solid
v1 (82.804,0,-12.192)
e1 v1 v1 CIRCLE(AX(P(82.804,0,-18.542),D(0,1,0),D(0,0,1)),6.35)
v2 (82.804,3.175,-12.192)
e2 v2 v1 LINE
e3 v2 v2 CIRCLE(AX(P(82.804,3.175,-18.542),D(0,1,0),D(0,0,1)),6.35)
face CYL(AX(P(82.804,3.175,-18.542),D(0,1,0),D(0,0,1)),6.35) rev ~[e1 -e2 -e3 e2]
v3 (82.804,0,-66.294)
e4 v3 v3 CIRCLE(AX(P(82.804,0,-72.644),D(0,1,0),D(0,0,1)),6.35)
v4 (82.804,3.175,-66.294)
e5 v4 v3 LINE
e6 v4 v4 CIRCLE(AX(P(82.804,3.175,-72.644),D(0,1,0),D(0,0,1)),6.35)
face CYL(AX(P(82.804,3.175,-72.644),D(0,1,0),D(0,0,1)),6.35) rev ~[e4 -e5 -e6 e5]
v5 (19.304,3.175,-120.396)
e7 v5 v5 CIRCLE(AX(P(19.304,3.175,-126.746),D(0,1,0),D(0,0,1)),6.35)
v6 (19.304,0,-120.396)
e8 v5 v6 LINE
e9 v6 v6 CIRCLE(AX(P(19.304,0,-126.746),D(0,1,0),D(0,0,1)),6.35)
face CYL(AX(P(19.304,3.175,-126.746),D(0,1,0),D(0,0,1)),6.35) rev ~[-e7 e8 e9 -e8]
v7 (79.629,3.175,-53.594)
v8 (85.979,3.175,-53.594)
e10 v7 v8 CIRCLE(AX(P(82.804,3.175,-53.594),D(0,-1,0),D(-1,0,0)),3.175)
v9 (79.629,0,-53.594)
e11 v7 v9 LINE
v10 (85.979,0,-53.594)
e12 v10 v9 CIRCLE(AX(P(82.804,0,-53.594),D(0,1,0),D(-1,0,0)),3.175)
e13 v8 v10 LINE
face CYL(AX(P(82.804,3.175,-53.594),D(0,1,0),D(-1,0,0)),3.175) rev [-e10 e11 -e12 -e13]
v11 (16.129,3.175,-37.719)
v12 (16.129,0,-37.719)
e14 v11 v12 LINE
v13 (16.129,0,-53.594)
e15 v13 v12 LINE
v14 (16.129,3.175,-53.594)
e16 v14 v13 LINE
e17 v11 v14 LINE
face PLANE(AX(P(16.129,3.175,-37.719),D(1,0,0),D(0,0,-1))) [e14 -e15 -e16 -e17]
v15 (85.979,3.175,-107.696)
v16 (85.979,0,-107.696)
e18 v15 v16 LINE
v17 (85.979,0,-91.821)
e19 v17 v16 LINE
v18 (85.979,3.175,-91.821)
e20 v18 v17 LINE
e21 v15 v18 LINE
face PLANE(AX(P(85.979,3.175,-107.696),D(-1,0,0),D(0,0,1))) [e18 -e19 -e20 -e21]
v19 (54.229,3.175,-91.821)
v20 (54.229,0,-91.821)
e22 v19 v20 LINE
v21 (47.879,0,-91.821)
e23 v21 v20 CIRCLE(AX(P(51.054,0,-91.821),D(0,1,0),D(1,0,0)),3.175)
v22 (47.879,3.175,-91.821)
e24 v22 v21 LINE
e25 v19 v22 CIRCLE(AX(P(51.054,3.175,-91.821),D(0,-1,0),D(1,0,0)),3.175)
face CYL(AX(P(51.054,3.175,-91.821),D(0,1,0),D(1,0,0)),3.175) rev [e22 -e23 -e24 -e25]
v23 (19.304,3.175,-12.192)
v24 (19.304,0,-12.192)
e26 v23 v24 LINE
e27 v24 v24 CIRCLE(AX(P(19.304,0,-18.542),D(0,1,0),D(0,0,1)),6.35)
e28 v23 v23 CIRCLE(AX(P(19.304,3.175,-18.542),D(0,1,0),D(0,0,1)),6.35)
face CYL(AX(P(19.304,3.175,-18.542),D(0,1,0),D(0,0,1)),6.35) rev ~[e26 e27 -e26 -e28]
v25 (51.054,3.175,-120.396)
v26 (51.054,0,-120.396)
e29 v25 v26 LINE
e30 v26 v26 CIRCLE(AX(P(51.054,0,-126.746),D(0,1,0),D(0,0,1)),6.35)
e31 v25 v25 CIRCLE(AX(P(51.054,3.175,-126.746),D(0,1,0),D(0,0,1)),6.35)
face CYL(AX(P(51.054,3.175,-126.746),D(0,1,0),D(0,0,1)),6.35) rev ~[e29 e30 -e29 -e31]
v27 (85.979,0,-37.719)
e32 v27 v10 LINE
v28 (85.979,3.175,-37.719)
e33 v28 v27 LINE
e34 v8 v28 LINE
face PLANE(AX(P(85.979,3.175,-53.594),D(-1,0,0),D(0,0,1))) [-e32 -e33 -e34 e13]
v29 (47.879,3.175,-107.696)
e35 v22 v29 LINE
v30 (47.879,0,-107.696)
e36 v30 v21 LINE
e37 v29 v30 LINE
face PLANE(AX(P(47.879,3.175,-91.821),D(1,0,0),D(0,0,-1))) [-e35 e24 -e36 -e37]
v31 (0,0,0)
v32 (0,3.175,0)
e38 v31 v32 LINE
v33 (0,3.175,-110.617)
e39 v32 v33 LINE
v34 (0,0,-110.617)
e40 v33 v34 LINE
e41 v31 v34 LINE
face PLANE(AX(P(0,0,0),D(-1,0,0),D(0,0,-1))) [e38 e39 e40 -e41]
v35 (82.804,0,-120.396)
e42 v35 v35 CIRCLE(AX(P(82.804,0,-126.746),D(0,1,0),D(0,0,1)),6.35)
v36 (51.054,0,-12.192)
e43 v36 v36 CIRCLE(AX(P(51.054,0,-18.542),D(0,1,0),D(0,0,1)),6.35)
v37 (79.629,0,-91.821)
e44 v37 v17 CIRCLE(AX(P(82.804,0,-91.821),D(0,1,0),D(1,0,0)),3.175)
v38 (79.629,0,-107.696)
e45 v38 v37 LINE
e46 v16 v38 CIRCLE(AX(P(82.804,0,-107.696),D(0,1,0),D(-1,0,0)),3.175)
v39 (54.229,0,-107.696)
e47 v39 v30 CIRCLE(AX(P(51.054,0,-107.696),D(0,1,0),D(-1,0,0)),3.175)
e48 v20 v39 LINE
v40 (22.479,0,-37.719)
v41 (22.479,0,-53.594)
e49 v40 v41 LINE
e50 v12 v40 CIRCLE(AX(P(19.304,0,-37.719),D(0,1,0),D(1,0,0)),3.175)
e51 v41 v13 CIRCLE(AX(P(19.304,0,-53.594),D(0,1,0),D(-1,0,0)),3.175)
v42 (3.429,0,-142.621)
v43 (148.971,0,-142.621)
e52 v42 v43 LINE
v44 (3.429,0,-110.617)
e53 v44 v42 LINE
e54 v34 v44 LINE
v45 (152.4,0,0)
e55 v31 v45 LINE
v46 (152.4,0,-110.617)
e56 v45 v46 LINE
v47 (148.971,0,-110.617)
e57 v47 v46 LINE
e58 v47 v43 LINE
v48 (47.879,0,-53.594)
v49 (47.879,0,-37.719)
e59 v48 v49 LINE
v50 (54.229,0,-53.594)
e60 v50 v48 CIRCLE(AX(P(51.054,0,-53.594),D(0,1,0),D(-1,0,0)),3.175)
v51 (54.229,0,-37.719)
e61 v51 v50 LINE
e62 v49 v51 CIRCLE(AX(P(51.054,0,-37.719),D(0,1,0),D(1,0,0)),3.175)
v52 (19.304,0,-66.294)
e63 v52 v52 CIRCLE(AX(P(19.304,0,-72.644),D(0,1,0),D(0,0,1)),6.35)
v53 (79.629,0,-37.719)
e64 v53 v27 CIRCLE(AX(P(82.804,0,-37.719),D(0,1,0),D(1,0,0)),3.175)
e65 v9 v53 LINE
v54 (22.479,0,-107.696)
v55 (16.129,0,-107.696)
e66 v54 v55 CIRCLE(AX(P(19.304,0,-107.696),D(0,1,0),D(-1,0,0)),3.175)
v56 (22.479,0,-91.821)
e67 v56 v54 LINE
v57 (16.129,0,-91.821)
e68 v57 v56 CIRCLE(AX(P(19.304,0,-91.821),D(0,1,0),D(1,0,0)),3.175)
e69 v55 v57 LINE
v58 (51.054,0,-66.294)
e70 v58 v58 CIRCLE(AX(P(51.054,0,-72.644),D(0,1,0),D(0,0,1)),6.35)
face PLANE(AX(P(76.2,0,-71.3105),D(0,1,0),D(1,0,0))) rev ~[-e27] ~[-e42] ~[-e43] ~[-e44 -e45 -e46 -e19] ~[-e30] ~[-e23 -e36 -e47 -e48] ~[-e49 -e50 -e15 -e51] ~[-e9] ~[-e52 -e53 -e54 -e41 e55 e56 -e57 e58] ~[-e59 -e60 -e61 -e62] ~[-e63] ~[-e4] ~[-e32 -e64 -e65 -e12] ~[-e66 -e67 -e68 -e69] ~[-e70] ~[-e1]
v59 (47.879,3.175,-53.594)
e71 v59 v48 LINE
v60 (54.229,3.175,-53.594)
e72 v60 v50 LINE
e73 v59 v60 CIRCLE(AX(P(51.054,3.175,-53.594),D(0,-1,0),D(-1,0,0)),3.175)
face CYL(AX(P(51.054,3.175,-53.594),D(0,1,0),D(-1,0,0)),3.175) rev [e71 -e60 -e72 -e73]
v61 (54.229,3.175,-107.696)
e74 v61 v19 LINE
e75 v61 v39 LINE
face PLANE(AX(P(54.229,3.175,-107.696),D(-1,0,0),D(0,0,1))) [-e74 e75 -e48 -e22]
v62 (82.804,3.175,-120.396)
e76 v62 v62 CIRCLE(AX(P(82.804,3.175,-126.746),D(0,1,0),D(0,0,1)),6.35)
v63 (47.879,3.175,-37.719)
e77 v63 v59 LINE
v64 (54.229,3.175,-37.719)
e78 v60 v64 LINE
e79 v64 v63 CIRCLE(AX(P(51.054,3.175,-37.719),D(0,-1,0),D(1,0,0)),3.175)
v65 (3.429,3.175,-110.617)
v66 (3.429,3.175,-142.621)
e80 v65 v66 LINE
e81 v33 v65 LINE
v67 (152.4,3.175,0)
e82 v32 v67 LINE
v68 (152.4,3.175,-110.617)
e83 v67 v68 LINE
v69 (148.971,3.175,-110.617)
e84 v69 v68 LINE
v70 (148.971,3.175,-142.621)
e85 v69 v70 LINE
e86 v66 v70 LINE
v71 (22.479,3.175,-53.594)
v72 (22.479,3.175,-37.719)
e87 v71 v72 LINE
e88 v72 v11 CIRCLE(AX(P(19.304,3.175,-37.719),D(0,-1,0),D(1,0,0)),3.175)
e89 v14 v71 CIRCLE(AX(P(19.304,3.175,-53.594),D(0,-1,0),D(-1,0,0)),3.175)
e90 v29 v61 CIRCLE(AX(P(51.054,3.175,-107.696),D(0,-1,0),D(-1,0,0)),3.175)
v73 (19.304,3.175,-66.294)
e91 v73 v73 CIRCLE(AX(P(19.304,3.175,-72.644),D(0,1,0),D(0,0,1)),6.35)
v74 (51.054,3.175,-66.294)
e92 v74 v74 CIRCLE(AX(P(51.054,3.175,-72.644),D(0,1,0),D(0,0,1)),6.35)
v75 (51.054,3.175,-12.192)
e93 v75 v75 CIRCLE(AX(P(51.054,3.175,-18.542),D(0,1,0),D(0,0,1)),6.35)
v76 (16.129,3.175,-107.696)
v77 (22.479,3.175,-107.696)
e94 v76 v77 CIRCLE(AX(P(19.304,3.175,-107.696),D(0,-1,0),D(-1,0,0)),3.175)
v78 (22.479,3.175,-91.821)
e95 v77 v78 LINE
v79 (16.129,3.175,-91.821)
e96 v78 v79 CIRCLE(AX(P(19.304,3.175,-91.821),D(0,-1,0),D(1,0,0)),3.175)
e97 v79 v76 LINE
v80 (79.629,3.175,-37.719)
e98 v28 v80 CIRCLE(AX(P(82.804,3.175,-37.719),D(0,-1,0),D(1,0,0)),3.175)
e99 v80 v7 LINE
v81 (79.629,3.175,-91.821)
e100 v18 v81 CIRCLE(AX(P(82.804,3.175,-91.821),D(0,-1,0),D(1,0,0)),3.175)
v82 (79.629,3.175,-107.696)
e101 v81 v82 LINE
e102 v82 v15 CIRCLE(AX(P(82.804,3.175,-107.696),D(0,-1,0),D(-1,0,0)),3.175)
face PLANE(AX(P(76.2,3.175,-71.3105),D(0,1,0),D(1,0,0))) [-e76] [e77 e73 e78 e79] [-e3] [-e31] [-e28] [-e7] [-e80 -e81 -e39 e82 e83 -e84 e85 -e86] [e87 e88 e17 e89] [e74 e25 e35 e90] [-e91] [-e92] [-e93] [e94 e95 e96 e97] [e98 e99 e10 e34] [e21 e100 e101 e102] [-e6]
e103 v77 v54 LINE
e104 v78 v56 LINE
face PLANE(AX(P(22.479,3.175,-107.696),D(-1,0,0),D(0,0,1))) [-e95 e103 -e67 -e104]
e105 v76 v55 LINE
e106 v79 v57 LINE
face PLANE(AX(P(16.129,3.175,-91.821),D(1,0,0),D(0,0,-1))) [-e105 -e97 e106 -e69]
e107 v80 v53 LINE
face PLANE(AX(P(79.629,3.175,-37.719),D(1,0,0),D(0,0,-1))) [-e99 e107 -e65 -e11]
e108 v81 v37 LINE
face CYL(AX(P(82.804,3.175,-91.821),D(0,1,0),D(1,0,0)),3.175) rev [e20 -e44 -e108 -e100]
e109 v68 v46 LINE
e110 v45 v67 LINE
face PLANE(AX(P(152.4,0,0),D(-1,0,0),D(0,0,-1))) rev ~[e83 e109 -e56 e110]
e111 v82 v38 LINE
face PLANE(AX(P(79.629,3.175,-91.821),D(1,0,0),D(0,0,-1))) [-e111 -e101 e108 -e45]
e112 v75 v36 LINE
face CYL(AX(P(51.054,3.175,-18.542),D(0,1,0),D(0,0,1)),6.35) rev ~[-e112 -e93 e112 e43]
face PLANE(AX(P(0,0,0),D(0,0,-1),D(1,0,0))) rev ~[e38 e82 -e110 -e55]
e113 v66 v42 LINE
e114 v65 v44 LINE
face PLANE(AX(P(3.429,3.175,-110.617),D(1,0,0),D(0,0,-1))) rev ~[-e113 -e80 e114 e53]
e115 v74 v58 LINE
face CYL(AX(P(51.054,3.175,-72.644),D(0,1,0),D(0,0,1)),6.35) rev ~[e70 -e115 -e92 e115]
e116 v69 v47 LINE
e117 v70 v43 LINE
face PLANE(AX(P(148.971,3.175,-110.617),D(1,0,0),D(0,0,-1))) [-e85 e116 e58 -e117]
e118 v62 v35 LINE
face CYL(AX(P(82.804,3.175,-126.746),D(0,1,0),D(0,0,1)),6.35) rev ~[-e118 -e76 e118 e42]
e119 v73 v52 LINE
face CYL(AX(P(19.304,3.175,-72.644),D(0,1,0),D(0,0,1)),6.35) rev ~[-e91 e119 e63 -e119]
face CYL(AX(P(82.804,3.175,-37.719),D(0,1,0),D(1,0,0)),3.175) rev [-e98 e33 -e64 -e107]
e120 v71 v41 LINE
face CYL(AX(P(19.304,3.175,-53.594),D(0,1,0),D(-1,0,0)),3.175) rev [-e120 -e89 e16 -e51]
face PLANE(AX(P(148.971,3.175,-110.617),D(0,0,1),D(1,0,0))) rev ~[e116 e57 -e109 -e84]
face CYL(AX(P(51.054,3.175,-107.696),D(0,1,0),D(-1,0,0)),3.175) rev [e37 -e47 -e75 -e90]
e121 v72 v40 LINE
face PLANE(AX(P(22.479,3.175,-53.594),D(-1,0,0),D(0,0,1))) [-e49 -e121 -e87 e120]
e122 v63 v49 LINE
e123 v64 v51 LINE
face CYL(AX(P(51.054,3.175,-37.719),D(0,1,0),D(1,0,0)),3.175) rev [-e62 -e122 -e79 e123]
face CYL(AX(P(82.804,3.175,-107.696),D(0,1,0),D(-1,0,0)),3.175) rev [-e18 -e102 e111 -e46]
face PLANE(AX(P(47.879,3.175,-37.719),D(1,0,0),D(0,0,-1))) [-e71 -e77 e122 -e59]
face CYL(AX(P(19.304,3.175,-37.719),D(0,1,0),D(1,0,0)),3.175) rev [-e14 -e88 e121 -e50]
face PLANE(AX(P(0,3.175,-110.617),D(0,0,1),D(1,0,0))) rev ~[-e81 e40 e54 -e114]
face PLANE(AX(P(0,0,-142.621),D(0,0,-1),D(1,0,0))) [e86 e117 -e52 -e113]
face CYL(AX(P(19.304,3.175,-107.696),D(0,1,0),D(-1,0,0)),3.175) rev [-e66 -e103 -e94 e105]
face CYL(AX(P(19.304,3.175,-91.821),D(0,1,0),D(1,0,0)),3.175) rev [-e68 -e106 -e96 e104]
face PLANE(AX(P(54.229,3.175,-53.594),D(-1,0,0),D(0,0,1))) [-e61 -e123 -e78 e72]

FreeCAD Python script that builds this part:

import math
import FreeCAD as App
import Part
import Sketcher
from FreeCAD import Vector
Q = App.Units.Quantity

doc = App.newDocument("Part")
body = doc.addObject("PartDesign::Body", "Body")

# Sketch on XZ plane
sketch1 = body.newObject("Sketcher::SketchObject", "Sketch")
sketch1.AttachmentSupport = (doc.getObject("XZ_Plane"), [""])
sketch1.MapMode = "FlatFace"
sketch1.addGeometry([
    Part.LineSegment(Vector(0, -143, 0), Vector(0, 0, 0)),
    Part.LineSegment(Vector(0, 0, 0), Vector(152, 0, 0)),
    Part.LineSegment(Vector(152, 0, 0), Vector(152, -143, 0)),
    Part.LineSegment(Vector(152, -143, 0), Vector(0, -143, 0)),
], False)
sketch1.addConstraint([
    Sketcher.Constraint("Coincident", 0, 2, 1, 1),
    Sketcher.Constraint("Coincident", 1, 2, 2, 1),
    Sketcher.Constraint("Coincident", 2, 2, 3, 1),
    Sketcher.Constraint("Coincident", 3, 2, 0, 1),
    Sketcher.Constraint("Vertical", 0),
    Sketcher.Constraint("Horizontal", 1),
    Sketcher.Constraint("Vertical", 2),
    Sketcher.Constraint("Horizontal", 3),
    Sketcher.Constraint("Coincident", 0, 2, -1, 1),
    Sketcher.Constraint("DistanceX", 1, 1, 1, 2, Q("6 in")),
    Sketcher.Constraint("DistanceY", 0, 1, 0, 2, Q("5.615 in")),
])
pad1 = body.newObject("PartDesign::Pad", "Pad")
pad1.Profile = sketch1
pad1.Length = Q("0.125 in")
pad1.Reversed = True

# Sketch on XZ plane
sketch2 = body.newObject("Sketcher::SketchObject", "Sketch001")
sketch2.AttachmentSupport = (doc.getObject("XZ_Plane"), [""])
sketch2.MapMode = "FlatFace"
sketch2.AttachmentOffset = App.Placement(Vector(0, 0, -0.125 * 25.4), App.Rotation())
sketch2.addGeometry([
    Part.LineSegment(Vector(0, -142.6, 0), Vector(0, -110.6, 0)),  # 0
    Part.LineSegment(Vector(0, -110.6, 0), Vector(3.4, -110.6, 0)),  # 1
    Part.LineSegment(Vector(3.4, -110.6, 0), Vector(3.4, -142.6, 0)),  # 2
    Part.LineSegment(Vector(3.4, -142.6, 0), Vector(0, -142.6, 0)),  # 3
    Part.LineSegment(Vector(149, -142.6, 0), Vector(149, -110.6, 0)),  # 4
    Part.LineSegment(Vector(149, -110.6, 0), Vector(152.4, -110.6, 0)),  # 5
    Part.LineSegment(Vector(152.4, -110.6, 0), Vector(152.4, -142.6, 0)),  # 6
    Part.LineSegment(Vector(152.4, -142.6, 0), Vector(149, -142.6, 0)),  # 7
], False)
sketch2.addConstraint([
    Sketcher.Constraint("Coincident", 0, 2, 1, 1),
    Sketcher.Constraint("Coincident", 1, 2, 2, 1),
    Sketcher.Constraint("Coincident", 2, 2, 3, 1),
    Sketcher.Constraint("Coincident", 3, 2, 0, 1),
    Sketcher.Constraint("Coincident", 4, 2, 5, 1),
    Sketcher.Constraint("Coincident", 5, 2, 6, 1),
    Sketcher.Constraint("Coincident", 6, 2, 7, 1),
    Sketcher.Constraint("Coincident", 7, 2, 4, 1),
    Sketcher.Constraint("Vertical", 0),
    Sketcher.Constraint("Horizontal", 1),
    Sketcher.Constraint("Vertical", 2),
    Sketcher.Constraint("Horizontal", 3),
    Sketcher.Constraint("Vertical", 4),
    Sketcher.Constraint("Horizontal", 5),
    Sketcher.Constraint("Vertical", 6),
    Sketcher.Constraint("Horizontal", 7),
    Sketcher.Constraint("PointOnObject", 0, 2, -2),
    Sketcher.Constraint("Horizontal", 1, 2, 4, 2),
    Sketcher.Constraint("Horizontal", 3, 2, 6, 2),
    Sketcher.Constraint("Equal", 3, 5),
    Sketcher.Constraint("DistanceX", -1, 1, 5, 2, Q("6 in")),
    Sketcher.Constraint("DistanceY", 0, 1, 0, 2, Q("1.26 in")),
    Sketcher.Constraint("DistanceX", 1, 1, 1, 2, Q("0.135 in")),
    Sketcher.Constraint("DistanceY", 0, 2, -1, 1, Q("4.355 in")),
])
pocket1 = body.newObject("PartDesign::Pocket", "Pocket")
pocket1.Profile = sketch2
pocket1.Type = "ThroughAll"
pocket1.Reversed = True

# Sketch on XZ plane
sketch3 = body.newObject("Sketcher::SketchObject", "Sketch002")
sketch3.AttachmentSupport = (doc.getObject("XZ_Plane"), [""])
sketch3.MapMode = "FlatFace"
sketch3.AttachmentOffset = App.Placement(Vector(0, 0, -0.125 * 25.4), App.Rotation())
sketch3.addGeometry(Part.Circle(Vector(19, -127, 0), Vector(0, 0, 1), 6), False)
sketch3.addConstraint([
    Sketcher.Constraint("Diameter", 0, Q("0.5 in")),
    Sketcher.Constraint("DistanceX", -1, 1, 0, 3, Q("0.76 in")),
    Sketcher.Constraint("DistanceY", 0, 3, -1, 1, Q("4.99 in")),
])
pocket2 = body.newObject("PartDesign::Pocket", "Pocket001")
pocket2.Profile = sketch3
pocket2.Type = "UpToFirst"
pocket2.Reversed = True

# Sketch on XZ plane
sketch4 = body.newObject("Sketcher::SketchObject", "Sketch003")
sketch4.AttachmentSupport = (doc.getObject("XZ_Plane"), [""])
sketch4.MapMode = "FlatFace"
sketch4.AttachmentOffset = App.Placement(Vector(0, 0, -0.125 * 25.4), App.Rotation())
sketch4.addGeometry(Part.Circle(Vector(51, -127, 0), Vector(0, 0, 1), 6), False)
sketch4.addConstraint([
    Sketcher.Constraint("Diameter", 0, Q("0.5 in")),
    Sketcher.Constraint("DistanceX", -1, 1, 0, 3, Q("2.01 in")),
    Sketcher.Constraint("DistanceY", 0, 3, -1, 1, Q("4.99 in")),
])
pocket3 = body.newObject("PartDesign::Pocket", "Pocket002")
pocket3.Profile = sketch4
pocket3.Type = "UpToFirst"
pocket3.Reversed = True

# Sketch on XZ plane
sketch5 = body.newObject("Sketcher::SketchObject", "Sketch004")
sketch5.AttachmentSupport = (doc.getObject("XZ_Plane"), [""])
sketch5.MapMode = "FlatFace"
sketch5.AttachmentOffset = App.Placement(Vector(0, 0, -0.125 * 25.4), App.Rotation())
sketch5.addGeometry(Part.Circle(Vector(83, -127, 0), Vector(0, 0, 1), 6), False)
sketch5.addConstraint([
    Sketcher.Constraint("Diameter", 0, Q("0.5 in")),
    Sketcher.Constraint("DistanceX", -1, 1, 0, 3, Q("3.26 in")),
    Sketcher.Constraint("DistanceY", 0, 3, -1, 1, Q("4.99 in")),
])
pocket4 = body.newObject("PartDesign::Pocket", "Pocket003")
pocket4.Profile = sketch5
pocket4.Type = "UpToFirst"
pocket4.Reversed = True

# Sketch on XZ plane
sketch6 = body.newObject("Sketcher::SketchObject", "Sketch005")
sketch6.AttachmentSupport = (doc.getObject("XZ_Plane"), [""])
sketch6.MapMode = "FlatFace"
sketch6.AttachmentOffset = App.Placement(Vector(0, 0, -0.125 * 25.4), App.Rotation())
sketch6.addGeometry(Part.Circle(Vector(19, -73, 0), Vector(0, 0, 1), 6), False)
sketch6.addConstraint([
    Sketcher.Constraint("Diameter", 0, Q("0.5 in")),
    Sketcher.Constraint("DistanceX", -1, 1, 0, 3, Q("0.76 in")),
    Sketcher.Constraint("DistanceY", 0, 3, -1, 1, Q("2.86 in")),
])
pocket5 = body.newObject("PartDesign::Pocket", "Pocket004")
pocket5.Profile = sketch6
pocket5.Type = "UpToFirst"
pocket5.Reversed = True

# Sketch on XZ plane
sketch7 = body.newObject("Sketcher::SketchObject", "Sketch006")
sketch7.AttachmentSupport = (doc.getObject("XZ_Plane"), [""])
sketch7.MapMode = "FlatFace"
sketch7.AttachmentOffset = App.Placement(Vector(0, 0, -0.125 * 25.4), App.Rotation())
sketch7.addGeometry(Part.Circle(Vector(51, -73, 0), Vector(0, 0, 1), 6), False)
sketch7.addConstraint([
    Sketcher.Constraint("Diameter", 0, Q("0.5 in")),
    Sketcher.Constraint("DistanceX", -1, 1, 0, 3, Q("2.01 in")),
    Sketcher.Constraint("DistanceY", 0, 3, -1, 1, Q("2.86 in")),
])
pocket6 = body.newObject("PartDesign::Pocket", "Pocket005")
pocket6.Profile = sketch7
pocket6.Type = "UpToFirst"
pocket6.Reversed = True

# Sketch on XZ plane
sketch8 = body.newObject("Sketcher::SketchObject", "Sketch007")
sketch8.AttachmentSupport = (doc.getObject("XZ_Plane"), [""])
sketch8.MapMode = "FlatFace"
sketch8.AttachmentOffset = App.Placement(Vector(0, 0, -0.125 * 25.4), App.Rotation())
sketch8.addGeometry(Part.Circle(Vector(83, -73, 0), Vector(0, 0, 1), 6), False)
sketch8.addConstraint([
    Sketcher.Constraint("Diameter", 0, Q("0.5 in")),
    Sketcher.Constraint("DistanceX", -1, 1, 0, 3, Q("3.26 in")),
    Sketcher.Constraint("DistanceY", 0, 3, -1, 1, Q("2.86 in")),
])
pocket7 = body.newObject("PartDesign::Pocket", "Pocket006")
pocket7.Profile = sketch8
pocket7.Type = "UpToFirst"
pocket7.Reversed = True

# Sketch on XZ plane
sketch9 = body.newObject("Sketcher::SketchObject", "Sketch008")
sketch9.AttachmentSupport = (doc.getObject("XZ_Plane"), [""])
sketch9.MapMode = "FlatFace"
sketch9.AttachmentOffset = App.Placement(Vector(0, 0, -0.125 * 25.4), App.Rotation())
sketch9.addGeometry(Part.Circle(Vector(19, -19, 0), Vector(0, 0, 1), 6), False)
sketch9.addConstraint([
    Sketcher.Constraint("Diameter", 0, Q("0.5 in")),
    Sketcher.Constraint("DistanceX", -1, 1, 0, 3, Q("0.76 in")),
    Sketcher.Constraint("DistanceY", 0, 3, -1, 1, Q("0.73 in")),
])
pocket8 = body.newObject("PartDesign::Pocket", "Pocket007")
pocket8.Profile = sketch9
pocket8.Type = "UpToFirst"
pocket8.Reversed = True

# Sketch on XZ plane
sketch10 = body.newObject("Sketcher::SketchObject", "Sketch009")
sketch10.AttachmentSupport = (doc.getObject("XZ_Plane"), [""])
sketch10.MapMode = "FlatFace"
sketch10.AttachmentOffset = App.Placement(Vector(0, 0, -0.125 * 25.4), App.Rotation())
sketch10.addGeometry(Part.Circle(Vector(51, -19, 0), Vector(0, 0, 1), 6), False)
sketch10.addConstraint([
    Sketcher.Constraint("Diameter", 0, Q("0.5 in")),
    Sketcher.Constraint("DistanceX", -1, 1, 0, 3, Q("2.01 in")),
    Sketcher.Constraint("DistanceY", 0, 3, -1, 1, Q("0.73 in")),
])
pocket9 = body.newObject("PartDesign::Pocket", "Pocket008")
pocket9.Profile = sketch10
pocket9.Type = "UpToFirst"
pocket9.Reversed = True

# Sketch on XZ plane
sketch11 = body.newObject("Sketcher::SketchObject", "Sketch010")
sketch11.AttachmentSupport = (doc.getObject("XZ_Plane"), [""])
sketch11.MapMode = "FlatFace"
sketch11.AttachmentOffset = App.Placement(Vector(0, 0, -0.125 * 25.4), App.Rotation())
sketch11.addGeometry(Part.Circle(Vector(83, -19, 0), Vector(0, 0, 1), 6), False)
sketch11.addConstraint([
    Sketcher.Constraint("Diameter", 0, Q("0.5 in")),
    Sketcher.Constraint("DistanceX", -1, 1, 0, 3, Q("3.26 in")),
    Sketcher.Constraint("DistanceY", 0, 3, -1, 1, Q("0.73 in")),
])
pocket10 = body.newObject("PartDesign::Pocket", "Pocket009")
pocket10.Profile = sketch11
pocket10.Type = "UpToFirst"
pocket10.Reversed = True

# Sketch on XZ plane
sketch12 = body.newObject("Sketcher::SketchObject", "Sketch011")
sketch12.AttachmentSupport = (doc.getObject("XZ_Plane"), [""])
sketch12.MapMode = "FlatFace"
sketch12.AttachmentOffset = App.Placement(Vector(0, 0, -0.125 * 25.4), App.Rotation())
sketch12.addGeometry([
    Part.LineSegment(Vector(22.5, -91.8, 0), Vector(22.5, -107.7, 0)),
    Part.ArcOfCircle(Part.Circle(Vector(19.3, -107.7, 0), Vector(0, 0, 1), 3.2), math.radians(180), math.radians(360)),
    Part.LineSegment(Vector(16.1, -107.7, 0), Vector(16.1, -91.8, 0)),
    Part.ArcOfCircle(Part.Circle(Vector(19.3, -91.8, 0), Vector(0, 0, 1), 3.2), math.radians(0), math.radians(180)),
], False)
sketch12.addConstraint([
    Sketcher.Constraint("Tangent", 0, 2, 1, 2),
    Sketcher.Constraint("Tangent", 1, 1, 2, 1),
    Sketcher.Constraint("Tangent", 2, 2, 3, 2),
    Sketcher.Constraint("Tangent", 3, 1, 0, 1),
    Sketcher.Constraint("Vertical", 0),
    Sketcher.Constraint("Vertical", 2),
    Sketcher.Constraint("Radius", 1, Q("0.125 in")),
    Sketcher.Constraint("DistanceY", 0, 2, 0, 1, Q("0.625 in")),
    Sketcher.Constraint("DistanceX", -1, 1, 1, 3, Q("0.76 in")),
    Sketcher.Constraint("DistanceY", 1, 3, -1, 1, Q("4.24 in")),
])
pocket11 = body.newObject("PartDesign::Pocket", "Pocket010")
pocket11.Profile = sketch12
pocket11.Type = "UpToFirst"
pocket11.Reversed = True

# Sketch on XZ plane
sketch13 = body.newObject("Sketcher::SketchObject", "Sketch012")
sketch13.AttachmentSupport = (doc.getObject("XZ_Plane"), [""])
sketch13.MapMode = "FlatFace"
sketch13.AttachmentOffset = App.Placement(Vector(0, 0, -0.125 * 25.4), App.Rotation())
sketch13.addGeometry([
    Part.LineSegment(Vector(54.2, -91.8, 0), Vector(54.2, -107.7, 0)),
    Part.ArcOfCircle(Part.Circle(Vector(51.1, -107.7, 0), Vector(0, 0, 1), 3.2), math.radians(180), math.radians(360)),
    Part.LineSegment(Vector(47.9, -107.7, 0), Vector(47.9, -91.8, 0)),
    Part.ArcOfCircle(Part.Circle(Vector(51.1, -91.8, 0), Vector(0, 0, 1), 3.2), math.radians(0), math.radians(180)),
], False)
sketch13.addConstraint([
    Sketcher.Constraint("Tangent", 0, 2, 1, 2),
    Sketcher.Constraint("Tangent", 1, 1, 2, 1),
    Sketcher.Constraint("Tangent", 2, 2, 3, 2),
    Sketcher.Constraint("Tangent", 3, 1, 0, 1),
    Sketcher.Constraint("Vertical", 0),
    Sketcher.Constraint("Vertical", 2),
    Sketcher.Constraint("Radius", 1, Q("0.125 in")),
    Sketcher.Constraint("DistanceY", 0, 2, 0, 1, Q("0.625 in")),
    Sketcher.Constraint("DistanceX", -1, 1, 1, 3, Q("2.01 in")),
    Sketcher.Constraint("DistanceY", 1, 3, -1, 1, Q("4.24 in")),
])
pocket12 = body.newObject("PartDesign::Pocket", "Pocket011")
pocket12.Profile = sketch13
pocket12.Type = "UpToFirst"
pocket12.Reversed = True

# Sketch on XZ plane
sketch14 = body.newObject("Sketcher::SketchObject", "Sketch013")
sketch14.AttachmentSupport = (doc.getObject("XZ_Plane"), [""])
sketch14.MapMode = "FlatFace"
sketch14.AttachmentOffset = App.Placement(Vector(0, 0, -0.125 * 25.4), App.Rotation())
sketch14.addGeometry([
    Part.LineSegment(Vector(86, -91.8, 0), Vector(86, -107.7, 0)),
    Part.ArcOfCircle(Part.Circle(Vector(82.8, -107.7, 0), Vector(0, 0, 1), 3.2), math.radians(180), math.radians(360)),
    Part.LineSegment(Vector(79.6, -107.7, 0), Vector(79.6, -91.8, 0)),
    Part.ArcOfCircle(Part.Circle(Vector(82.8, -91.8, 0), Vector(0, 0, 1), 3.2), math.radians(0), math.radians(180)),
], False)
sketch14.addConstraint([
    Sketcher.Constraint("Tangent", 0, 2, 1, 2),
    Sketcher.Constraint("Tangent", 1, 1, 2, 1),
    Sketcher.Constraint("Tangent", 2, 2, 3, 2),
    Sketcher.Constraint("Tangent", 3, 1, 0, 1),
    Sketcher.Constraint("Vertical", 0),
    Sketcher.Constraint("Vertical", 2),
    Sketcher.Constraint("Radius", 1, Q("0.125 in")),
    Sketcher.Constraint("DistanceY", 0, 2, 0, 1, Q("0.625 in")),
    Sketcher.Constraint("DistanceX", -1, 1, 1, 3, Q("3.26 in")),
    Sketcher.Constraint("DistanceY", 1, 3, -1, 1, Q("4.24 in")),
])
pocket13 = body.newObject("PartDesign::Pocket", "Pocket012")
pocket13.Profile = sketch14
pocket13.Type = "UpToFirst"
pocket13.Reversed = True

# Sketch on XZ plane
sketch15 = body.newObject("Sketcher::SketchObject", "Sketch014")
sketch15.AttachmentSupport = (doc.getObject("XZ_Plane"), [""])
sketch15.MapMode = "FlatFace"
sketch15.AttachmentOffset = App.Placement(Vector(0, 0, -0.125 * 25.4), App.Rotation())
sketch15.addGeometry([
    Part.LineSegment(Vector(22.5, -37.7, 0), Vector(22.5, -53.6, 0)),
    Part.ArcOfCircle(Part.Circle(Vector(19.3, -53.6, 0), Vector(0, 0, 1), 3.2), math.radians(180), math.radians(360)),
    Part.LineSegment(Vector(16.1, -53.6, 0), Vector(16.1, -37.7, 0)),
    Part.ArcOfCircle(Part.Circle(Vector(19.3, -37.7, 0), Vector(0, 0, 1), 3.2), math.radians(0), math.radians(180)),
], False)
sketch15.addConstraint([
    Sketcher.Constraint("Tangent", 0, 2, 1, 2),
    Sketcher.Constraint("Tangent", 1, 1, 2, 1),
    Sketcher.Constraint("Tangent", 2, 2, 3, 2),
    Sketcher.Constraint("Tangent", 3, 1, 0, 1),
    Sketcher.Constraint("Vertical", 0),
    Sketcher.Constraint("Vertical", 2),
    Sketcher.Constraint("Radius", 1, Q("0.125 in")),
    Sketcher.Constraint("DistanceY", 0, 2, 0, 1, Q("0.625 in")),
    Sketcher.Constraint("DistanceX", -1, 1, 1, 3, Q("0.76 in")),
    Sketcher.Constraint("DistanceY", 1, 3, -1, 1, Q("2.11 in")),
])
pocket14 = body.newObject("PartDesign::Pocket", "Pocket013")
pocket14.Profile = sketch15
pocket14.Type = "UpToFirst"
pocket14.Reversed = True

# Sketch on XZ plane
sketch16 = body.newObject("Sketcher::SketchObject", "Sketch015")
sketch16.AttachmentSupport = (doc.getObject("XZ_Plane"), [""])
sketch16.MapMode = "FlatFace"
sketch16.AttachmentOffset = App.Placement(Vector(0, 0, -0.125 * 25.4), App.Rotation())
sketch16.addGeometry([
    Part.LineSegment(Vector(54.2, -37.7, 0), Vector(54.2, -53.6, 0)),
    Part.ArcOfCircle(Part.Circle(Vector(51.1, -53.6, 0), Vector(0, 0, 1), 3.2), math.radians(180), math.radians(360)),
    Part.LineSegment(Vector(47.9, -53.6, 0), Vector(47.9, -37.7, 0)),
    Part.ArcOfCircle(Part.Circle(Vector(51.1, -37.7, 0), Vector(0, 0, 1), 3.2), math.radians(0), math.radians(180)),
], False)
sketch16.addConstraint([
    Sketcher.Constraint("Tangent", 0, 2, 1, 2),
    Sketcher.Constraint("Tangent", 1, 1, 2, 1),
    Sketcher.Constraint("Tangent", 2, 2, 3, 2),
    Sketcher.Constraint("Tangent", 3, 1, 0, 1),
    Sketcher.Constraint("Vertical", 0),
    Sketcher.Constraint("Vertical", 2),
    Sketcher.Constraint("Radius", 1, Q("0.125 in")),
    Sketcher.Constraint("DistanceY", 0, 2, 0, 1, Q("0.625 in")),
    Sketcher.Constraint("DistanceX", -1, 1, 1, 3, Q("2.01 in")),
    Sketcher.Constraint("DistanceY", 1, 3, -1, 1, Q("2.11 in")),
])
pocket15 = body.newObject("PartDesign::Pocket", "Pocket014")
pocket15.Profile = sketch16
pocket15.Type = "UpToFirst"
pocket15.Reversed = True

# Sketch on XZ plane
sketch17 = body.newObject("Sketcher::SketchObject", "Sketch016")
sketch17.AttachmentSupport = (doc.getObject("XZ_Plane"), [""])
sketch17.MapMode = "FlatFace"
sketch17.AttachmentOffset = App.Placement(Vector(0, 0, -0.125 * 25.4), App.Rotation())
sketch17.addGeometry([
    Part.LineSegment(Vector(86, -37.7, 0), Vector(86, -53.6, 0)),
    Part.ArcOfCircle(Part.Circle(Vector(82.8, -53.6, 0), Vector(0, 0, 1), 3.2), math.radians(180), math.radians(360)),
    Part.LineSegment(Vector(79.6, -53.6, 0), Vector(79.6, -37.7, 0)),
    Part.ArcOfCircle(Part.Circle(Vector(82.8, -37.7, 0), Vector(0, 0, 1), 3.2), math.radians(0), math.radians(180)),
], False)
sketch17.addConstraint([
    Sketcher.Constraint("Tangent", 0, 2, 1, 2),
    Sketcher.Constraint("Tangent", 1, 1, 2, 1),
    Sketcher.Constraint("Tangent", 2, 2, 3, 2),
    Sketcher.Constraint("Tangent", 3, 1, 0, 1),
    Sketcher.Constraint("Vertical", 0),
    Sketcher.Constraint("Vertical", 2),
    Sketcher.Constraint("Radius", 1, Q("0.125 in")),
    Sketcher.Constraint("DistanceY", 0, 2, 0, 1, Q("0.625 in")),
    Sketcher.Constraint("DistanceX", -1, 1, 1, 3, Q("3.26 in")),
    Sketcher.Constraint("DistanceY", 1, 3, -1, 1, Q("2.11 in")),
])
pocket16 = body.newObject("PartDesign::Pocket", "Pocket015")
pocket16.Profile = sketch17
pocket16.Type = "UpToFirst"
pocket16.Reversed = True

doc.recompute()
